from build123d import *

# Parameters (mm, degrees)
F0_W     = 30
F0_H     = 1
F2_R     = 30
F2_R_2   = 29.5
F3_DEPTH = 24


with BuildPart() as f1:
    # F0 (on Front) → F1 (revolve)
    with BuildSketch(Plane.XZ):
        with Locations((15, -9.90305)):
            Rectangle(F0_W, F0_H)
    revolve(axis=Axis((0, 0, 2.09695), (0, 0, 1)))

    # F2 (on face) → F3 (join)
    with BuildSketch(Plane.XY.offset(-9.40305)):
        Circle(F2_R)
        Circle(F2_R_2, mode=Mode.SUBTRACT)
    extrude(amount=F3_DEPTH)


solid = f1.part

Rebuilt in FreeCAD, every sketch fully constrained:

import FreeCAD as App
import Part
import Sketcher

doc = App.newDocument("Part")
body = doc.addObject("PartDesign::Body", "Body")

# Sketch on XZ plane
sketch1 = doc.addObject("Sketcher::SketchObject", "Sketch")
body.addObject(sketch1)
sketch1.AttachmentSupport = (doc.XZ_Plane, [""])
sketch1.MapMode = "FlatFace"
sketch1.addGeometry([
    Part.LineSegment(App.Vector(0, -9.40305, 0), App.Vector(0, -10.40305, 0)),
    Part.LineSegment(App.Vector(0, -10.40305, 0), App.Vector(30, -10.40305, 0)),
    Part.LineSegment(App.Vector(30, -10.40305, 0), App.Vector(30, -9.40305, 0)),
    Part.LineSegment(App.Vector(30, -9.40305, 0), App.Vector(0, -9.40305, 0)),
], False)
sketch1.addConstraint([
    Sketcher.Constraint("Coincident", 0, 2, 1, 1),
    Sketcher.Constraint("Coincident", 1, 2, 2, 1),
    Sketcher.Constraint("Coincident", 2, 2, 3, 1),
    Sketcher.Constraint("Coincident", 3, 2, 0, 1),
    Sketcher.Constraint("Vertical", 0),
    Sketcher.Constraint("Horizontal", 1),
    Sketcher.Constraint("Vertical", 2),
    Sketcher.Constraint("Horizontal", 3),
    Sketcher.Constraint("PointOnObject", 0, 2, -2),
    Sketcher.Constraint("DistanceX", 1, 1, 1, 2, 30.0),
    Sketcher.Constraint("DistanceY", 0, 2, 0, 1, 1.0),
    Sketcher.Constraint("DistanceY", 0, 2, -1, 1, 10.40305),
])
revolution = doc.addObject("PartDesign::Revolution", "Revolution")
body.addObject(revolution)
revolution.Profile = sketch1
revolution.ReferenceAxis = (sketch1, ["V_Axis"])
revolution.Angle = 360

# Sketch on XY plane
sketch2 = doc.addObject("Sketcher::SketchObject", "Sketch001")
body.addObject(sketch2)
sketch2.AttachmentSupport = (doc.XY_Plane, [""])
sketch2.MapMode = "FlatFace"
sketch2.AttachmentOffset = App.Placement(App.Vector(0, 0, -9.40305), App.Rotation())
sketch2.addGeometry([
    Part.Circle(App.Vector(0, 0, 0), App.Vector(0, 0, 1), 30),
    Part.Circle(App.Vector(0, 0, 0), App.Vector(0, 0, 1), 29.5),
], False)
sketch2.addConstraint([
    Sketcher.Constraint("Coincident", 0, 3, -1, 1),
    Sketcher.Constraint("Coincident", 1, 3, -1, 1),
    Sketcher.Constraint("Diameter", 0, 60.0),
    Sketcher.Constraint("Diameter", 1, 59.0),
])
pad1 = doc.addObject("PartDesign::Pad", "Pad")
body.addObject(pad1)
pad1.Profile = sketch2
pad1.Length = 24

doc.recompute()
